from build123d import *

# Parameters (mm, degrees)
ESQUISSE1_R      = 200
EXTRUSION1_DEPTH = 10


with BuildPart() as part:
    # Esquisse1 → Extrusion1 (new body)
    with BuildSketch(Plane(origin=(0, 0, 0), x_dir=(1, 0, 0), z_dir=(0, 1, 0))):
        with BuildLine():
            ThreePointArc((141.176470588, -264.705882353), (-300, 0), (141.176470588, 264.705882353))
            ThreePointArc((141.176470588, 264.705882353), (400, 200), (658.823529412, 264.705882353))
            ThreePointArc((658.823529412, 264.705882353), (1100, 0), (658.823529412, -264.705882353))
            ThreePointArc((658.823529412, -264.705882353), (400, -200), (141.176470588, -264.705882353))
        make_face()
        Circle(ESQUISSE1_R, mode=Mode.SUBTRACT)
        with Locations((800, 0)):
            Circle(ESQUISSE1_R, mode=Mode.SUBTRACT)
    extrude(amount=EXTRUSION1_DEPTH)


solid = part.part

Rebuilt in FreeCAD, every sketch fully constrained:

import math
import FreeCAD as App
import Part
import Sketcher

doc = App.newDocument("Part")
body = doc.addObject("PartDesign::Body", "Body")

# Sketch on XZ plane
sketch1 = body.newObject("Sketcher::SketchObject", "Sketch")
sketch1.AttachmentSupport = (doc.getObject("XZ_Plane"), [""])
sketch1.MapMode = "FlatFace"
sketch1.addGeometry(Part.ArcOfCircle(Part.Circle(App.Vector(0, 0, 0), App.Vector(0, 0, 1), 300), math.radians(62), math.radians(298)), False)
sketch1.addGeometry(Part.ArcOfCircle(Part.Circle(App.Vector(400, 750, 0), App.Vector(0, 0, 1), 550), math.radians(-118), math.radians(-62)), False)
sketch1.addGeometry(Part.ArcOfCircle(Part.Circle(App.Vector(800, 0, 0), App.Vector(0, 0, 1), 300), math.radians(-118), math.radians(118)), False)
sketch1.addGeometry(Part.ArcOfCircle(Part.Circle(App.Vector(400, -750, 0), App.Vector(0, 0, 1), 550), math.radians(62), math.radians(118)), False)
sketch1.addGeometry(Part.Circle(App.Vector(800, 0, 0), App.Vector(0, 0, 1), 200), False)
sketch1.addGeometry(Part.Circle(App.Vector(0, 0, 0), App.Vector(0, 0, 1), 200), False)
sketch1.addConstraint(Sketcher.Constraint("Tangent", 0, 1, 1, 1))
sketch1.addConstraint(Sketcher.Constraint("Tangent", 1, 2, 2, 2))
sketch1.addConstraint(Sketcher.Constraint("Tangent", 2, 1, 3, 1))
sketch1.addConstraint(Sketcher.Constraint("Tangent", 3, 2, 0, 2))
sketch1.addConstraint(Sketcher.Constraint("Coincident", 0, 3, -1, 1))
sketch1.addConstraint(Sketcher.Constraint("Coincident", 5, 3, -1, 1))
sketch1.addConstraint(Sketcher.Constraint("Coincident", 4, 3, 2, 3))
sketch1.addConstraint(Sketcher.Constraint("Equal", 0, 2))
sketch1.addConstraint(Sketcher.Constraint("Equal", 1, 3))
sketch1.addConstraint(Sketcher.Constraint("Equal", 4, 5))
sketch1.addConstraint(Sketcher.Constraint("PointOnObject", 2, 3, -1))
sketch1.addConstraint(Sketcher.Constraint("Diameter", 4, 400.0))
sketch1.addConstraint(Sketcher.Constraint("Radius", 0, 300.0))
sketch1.addConstraint(Sketcher.Constraint("Radius", 1, 550.0))
sketch1.addConstraint(Sketcher.Constraint("DistanceX", -1, 1, 1, 3, 400.0))
pad1 = body.newObject("PartDesign::Pad", "Pad")
pad1.Profile = sketch1
pad1.Length = 10
pad1.Reversed = True

doc.recompute()
